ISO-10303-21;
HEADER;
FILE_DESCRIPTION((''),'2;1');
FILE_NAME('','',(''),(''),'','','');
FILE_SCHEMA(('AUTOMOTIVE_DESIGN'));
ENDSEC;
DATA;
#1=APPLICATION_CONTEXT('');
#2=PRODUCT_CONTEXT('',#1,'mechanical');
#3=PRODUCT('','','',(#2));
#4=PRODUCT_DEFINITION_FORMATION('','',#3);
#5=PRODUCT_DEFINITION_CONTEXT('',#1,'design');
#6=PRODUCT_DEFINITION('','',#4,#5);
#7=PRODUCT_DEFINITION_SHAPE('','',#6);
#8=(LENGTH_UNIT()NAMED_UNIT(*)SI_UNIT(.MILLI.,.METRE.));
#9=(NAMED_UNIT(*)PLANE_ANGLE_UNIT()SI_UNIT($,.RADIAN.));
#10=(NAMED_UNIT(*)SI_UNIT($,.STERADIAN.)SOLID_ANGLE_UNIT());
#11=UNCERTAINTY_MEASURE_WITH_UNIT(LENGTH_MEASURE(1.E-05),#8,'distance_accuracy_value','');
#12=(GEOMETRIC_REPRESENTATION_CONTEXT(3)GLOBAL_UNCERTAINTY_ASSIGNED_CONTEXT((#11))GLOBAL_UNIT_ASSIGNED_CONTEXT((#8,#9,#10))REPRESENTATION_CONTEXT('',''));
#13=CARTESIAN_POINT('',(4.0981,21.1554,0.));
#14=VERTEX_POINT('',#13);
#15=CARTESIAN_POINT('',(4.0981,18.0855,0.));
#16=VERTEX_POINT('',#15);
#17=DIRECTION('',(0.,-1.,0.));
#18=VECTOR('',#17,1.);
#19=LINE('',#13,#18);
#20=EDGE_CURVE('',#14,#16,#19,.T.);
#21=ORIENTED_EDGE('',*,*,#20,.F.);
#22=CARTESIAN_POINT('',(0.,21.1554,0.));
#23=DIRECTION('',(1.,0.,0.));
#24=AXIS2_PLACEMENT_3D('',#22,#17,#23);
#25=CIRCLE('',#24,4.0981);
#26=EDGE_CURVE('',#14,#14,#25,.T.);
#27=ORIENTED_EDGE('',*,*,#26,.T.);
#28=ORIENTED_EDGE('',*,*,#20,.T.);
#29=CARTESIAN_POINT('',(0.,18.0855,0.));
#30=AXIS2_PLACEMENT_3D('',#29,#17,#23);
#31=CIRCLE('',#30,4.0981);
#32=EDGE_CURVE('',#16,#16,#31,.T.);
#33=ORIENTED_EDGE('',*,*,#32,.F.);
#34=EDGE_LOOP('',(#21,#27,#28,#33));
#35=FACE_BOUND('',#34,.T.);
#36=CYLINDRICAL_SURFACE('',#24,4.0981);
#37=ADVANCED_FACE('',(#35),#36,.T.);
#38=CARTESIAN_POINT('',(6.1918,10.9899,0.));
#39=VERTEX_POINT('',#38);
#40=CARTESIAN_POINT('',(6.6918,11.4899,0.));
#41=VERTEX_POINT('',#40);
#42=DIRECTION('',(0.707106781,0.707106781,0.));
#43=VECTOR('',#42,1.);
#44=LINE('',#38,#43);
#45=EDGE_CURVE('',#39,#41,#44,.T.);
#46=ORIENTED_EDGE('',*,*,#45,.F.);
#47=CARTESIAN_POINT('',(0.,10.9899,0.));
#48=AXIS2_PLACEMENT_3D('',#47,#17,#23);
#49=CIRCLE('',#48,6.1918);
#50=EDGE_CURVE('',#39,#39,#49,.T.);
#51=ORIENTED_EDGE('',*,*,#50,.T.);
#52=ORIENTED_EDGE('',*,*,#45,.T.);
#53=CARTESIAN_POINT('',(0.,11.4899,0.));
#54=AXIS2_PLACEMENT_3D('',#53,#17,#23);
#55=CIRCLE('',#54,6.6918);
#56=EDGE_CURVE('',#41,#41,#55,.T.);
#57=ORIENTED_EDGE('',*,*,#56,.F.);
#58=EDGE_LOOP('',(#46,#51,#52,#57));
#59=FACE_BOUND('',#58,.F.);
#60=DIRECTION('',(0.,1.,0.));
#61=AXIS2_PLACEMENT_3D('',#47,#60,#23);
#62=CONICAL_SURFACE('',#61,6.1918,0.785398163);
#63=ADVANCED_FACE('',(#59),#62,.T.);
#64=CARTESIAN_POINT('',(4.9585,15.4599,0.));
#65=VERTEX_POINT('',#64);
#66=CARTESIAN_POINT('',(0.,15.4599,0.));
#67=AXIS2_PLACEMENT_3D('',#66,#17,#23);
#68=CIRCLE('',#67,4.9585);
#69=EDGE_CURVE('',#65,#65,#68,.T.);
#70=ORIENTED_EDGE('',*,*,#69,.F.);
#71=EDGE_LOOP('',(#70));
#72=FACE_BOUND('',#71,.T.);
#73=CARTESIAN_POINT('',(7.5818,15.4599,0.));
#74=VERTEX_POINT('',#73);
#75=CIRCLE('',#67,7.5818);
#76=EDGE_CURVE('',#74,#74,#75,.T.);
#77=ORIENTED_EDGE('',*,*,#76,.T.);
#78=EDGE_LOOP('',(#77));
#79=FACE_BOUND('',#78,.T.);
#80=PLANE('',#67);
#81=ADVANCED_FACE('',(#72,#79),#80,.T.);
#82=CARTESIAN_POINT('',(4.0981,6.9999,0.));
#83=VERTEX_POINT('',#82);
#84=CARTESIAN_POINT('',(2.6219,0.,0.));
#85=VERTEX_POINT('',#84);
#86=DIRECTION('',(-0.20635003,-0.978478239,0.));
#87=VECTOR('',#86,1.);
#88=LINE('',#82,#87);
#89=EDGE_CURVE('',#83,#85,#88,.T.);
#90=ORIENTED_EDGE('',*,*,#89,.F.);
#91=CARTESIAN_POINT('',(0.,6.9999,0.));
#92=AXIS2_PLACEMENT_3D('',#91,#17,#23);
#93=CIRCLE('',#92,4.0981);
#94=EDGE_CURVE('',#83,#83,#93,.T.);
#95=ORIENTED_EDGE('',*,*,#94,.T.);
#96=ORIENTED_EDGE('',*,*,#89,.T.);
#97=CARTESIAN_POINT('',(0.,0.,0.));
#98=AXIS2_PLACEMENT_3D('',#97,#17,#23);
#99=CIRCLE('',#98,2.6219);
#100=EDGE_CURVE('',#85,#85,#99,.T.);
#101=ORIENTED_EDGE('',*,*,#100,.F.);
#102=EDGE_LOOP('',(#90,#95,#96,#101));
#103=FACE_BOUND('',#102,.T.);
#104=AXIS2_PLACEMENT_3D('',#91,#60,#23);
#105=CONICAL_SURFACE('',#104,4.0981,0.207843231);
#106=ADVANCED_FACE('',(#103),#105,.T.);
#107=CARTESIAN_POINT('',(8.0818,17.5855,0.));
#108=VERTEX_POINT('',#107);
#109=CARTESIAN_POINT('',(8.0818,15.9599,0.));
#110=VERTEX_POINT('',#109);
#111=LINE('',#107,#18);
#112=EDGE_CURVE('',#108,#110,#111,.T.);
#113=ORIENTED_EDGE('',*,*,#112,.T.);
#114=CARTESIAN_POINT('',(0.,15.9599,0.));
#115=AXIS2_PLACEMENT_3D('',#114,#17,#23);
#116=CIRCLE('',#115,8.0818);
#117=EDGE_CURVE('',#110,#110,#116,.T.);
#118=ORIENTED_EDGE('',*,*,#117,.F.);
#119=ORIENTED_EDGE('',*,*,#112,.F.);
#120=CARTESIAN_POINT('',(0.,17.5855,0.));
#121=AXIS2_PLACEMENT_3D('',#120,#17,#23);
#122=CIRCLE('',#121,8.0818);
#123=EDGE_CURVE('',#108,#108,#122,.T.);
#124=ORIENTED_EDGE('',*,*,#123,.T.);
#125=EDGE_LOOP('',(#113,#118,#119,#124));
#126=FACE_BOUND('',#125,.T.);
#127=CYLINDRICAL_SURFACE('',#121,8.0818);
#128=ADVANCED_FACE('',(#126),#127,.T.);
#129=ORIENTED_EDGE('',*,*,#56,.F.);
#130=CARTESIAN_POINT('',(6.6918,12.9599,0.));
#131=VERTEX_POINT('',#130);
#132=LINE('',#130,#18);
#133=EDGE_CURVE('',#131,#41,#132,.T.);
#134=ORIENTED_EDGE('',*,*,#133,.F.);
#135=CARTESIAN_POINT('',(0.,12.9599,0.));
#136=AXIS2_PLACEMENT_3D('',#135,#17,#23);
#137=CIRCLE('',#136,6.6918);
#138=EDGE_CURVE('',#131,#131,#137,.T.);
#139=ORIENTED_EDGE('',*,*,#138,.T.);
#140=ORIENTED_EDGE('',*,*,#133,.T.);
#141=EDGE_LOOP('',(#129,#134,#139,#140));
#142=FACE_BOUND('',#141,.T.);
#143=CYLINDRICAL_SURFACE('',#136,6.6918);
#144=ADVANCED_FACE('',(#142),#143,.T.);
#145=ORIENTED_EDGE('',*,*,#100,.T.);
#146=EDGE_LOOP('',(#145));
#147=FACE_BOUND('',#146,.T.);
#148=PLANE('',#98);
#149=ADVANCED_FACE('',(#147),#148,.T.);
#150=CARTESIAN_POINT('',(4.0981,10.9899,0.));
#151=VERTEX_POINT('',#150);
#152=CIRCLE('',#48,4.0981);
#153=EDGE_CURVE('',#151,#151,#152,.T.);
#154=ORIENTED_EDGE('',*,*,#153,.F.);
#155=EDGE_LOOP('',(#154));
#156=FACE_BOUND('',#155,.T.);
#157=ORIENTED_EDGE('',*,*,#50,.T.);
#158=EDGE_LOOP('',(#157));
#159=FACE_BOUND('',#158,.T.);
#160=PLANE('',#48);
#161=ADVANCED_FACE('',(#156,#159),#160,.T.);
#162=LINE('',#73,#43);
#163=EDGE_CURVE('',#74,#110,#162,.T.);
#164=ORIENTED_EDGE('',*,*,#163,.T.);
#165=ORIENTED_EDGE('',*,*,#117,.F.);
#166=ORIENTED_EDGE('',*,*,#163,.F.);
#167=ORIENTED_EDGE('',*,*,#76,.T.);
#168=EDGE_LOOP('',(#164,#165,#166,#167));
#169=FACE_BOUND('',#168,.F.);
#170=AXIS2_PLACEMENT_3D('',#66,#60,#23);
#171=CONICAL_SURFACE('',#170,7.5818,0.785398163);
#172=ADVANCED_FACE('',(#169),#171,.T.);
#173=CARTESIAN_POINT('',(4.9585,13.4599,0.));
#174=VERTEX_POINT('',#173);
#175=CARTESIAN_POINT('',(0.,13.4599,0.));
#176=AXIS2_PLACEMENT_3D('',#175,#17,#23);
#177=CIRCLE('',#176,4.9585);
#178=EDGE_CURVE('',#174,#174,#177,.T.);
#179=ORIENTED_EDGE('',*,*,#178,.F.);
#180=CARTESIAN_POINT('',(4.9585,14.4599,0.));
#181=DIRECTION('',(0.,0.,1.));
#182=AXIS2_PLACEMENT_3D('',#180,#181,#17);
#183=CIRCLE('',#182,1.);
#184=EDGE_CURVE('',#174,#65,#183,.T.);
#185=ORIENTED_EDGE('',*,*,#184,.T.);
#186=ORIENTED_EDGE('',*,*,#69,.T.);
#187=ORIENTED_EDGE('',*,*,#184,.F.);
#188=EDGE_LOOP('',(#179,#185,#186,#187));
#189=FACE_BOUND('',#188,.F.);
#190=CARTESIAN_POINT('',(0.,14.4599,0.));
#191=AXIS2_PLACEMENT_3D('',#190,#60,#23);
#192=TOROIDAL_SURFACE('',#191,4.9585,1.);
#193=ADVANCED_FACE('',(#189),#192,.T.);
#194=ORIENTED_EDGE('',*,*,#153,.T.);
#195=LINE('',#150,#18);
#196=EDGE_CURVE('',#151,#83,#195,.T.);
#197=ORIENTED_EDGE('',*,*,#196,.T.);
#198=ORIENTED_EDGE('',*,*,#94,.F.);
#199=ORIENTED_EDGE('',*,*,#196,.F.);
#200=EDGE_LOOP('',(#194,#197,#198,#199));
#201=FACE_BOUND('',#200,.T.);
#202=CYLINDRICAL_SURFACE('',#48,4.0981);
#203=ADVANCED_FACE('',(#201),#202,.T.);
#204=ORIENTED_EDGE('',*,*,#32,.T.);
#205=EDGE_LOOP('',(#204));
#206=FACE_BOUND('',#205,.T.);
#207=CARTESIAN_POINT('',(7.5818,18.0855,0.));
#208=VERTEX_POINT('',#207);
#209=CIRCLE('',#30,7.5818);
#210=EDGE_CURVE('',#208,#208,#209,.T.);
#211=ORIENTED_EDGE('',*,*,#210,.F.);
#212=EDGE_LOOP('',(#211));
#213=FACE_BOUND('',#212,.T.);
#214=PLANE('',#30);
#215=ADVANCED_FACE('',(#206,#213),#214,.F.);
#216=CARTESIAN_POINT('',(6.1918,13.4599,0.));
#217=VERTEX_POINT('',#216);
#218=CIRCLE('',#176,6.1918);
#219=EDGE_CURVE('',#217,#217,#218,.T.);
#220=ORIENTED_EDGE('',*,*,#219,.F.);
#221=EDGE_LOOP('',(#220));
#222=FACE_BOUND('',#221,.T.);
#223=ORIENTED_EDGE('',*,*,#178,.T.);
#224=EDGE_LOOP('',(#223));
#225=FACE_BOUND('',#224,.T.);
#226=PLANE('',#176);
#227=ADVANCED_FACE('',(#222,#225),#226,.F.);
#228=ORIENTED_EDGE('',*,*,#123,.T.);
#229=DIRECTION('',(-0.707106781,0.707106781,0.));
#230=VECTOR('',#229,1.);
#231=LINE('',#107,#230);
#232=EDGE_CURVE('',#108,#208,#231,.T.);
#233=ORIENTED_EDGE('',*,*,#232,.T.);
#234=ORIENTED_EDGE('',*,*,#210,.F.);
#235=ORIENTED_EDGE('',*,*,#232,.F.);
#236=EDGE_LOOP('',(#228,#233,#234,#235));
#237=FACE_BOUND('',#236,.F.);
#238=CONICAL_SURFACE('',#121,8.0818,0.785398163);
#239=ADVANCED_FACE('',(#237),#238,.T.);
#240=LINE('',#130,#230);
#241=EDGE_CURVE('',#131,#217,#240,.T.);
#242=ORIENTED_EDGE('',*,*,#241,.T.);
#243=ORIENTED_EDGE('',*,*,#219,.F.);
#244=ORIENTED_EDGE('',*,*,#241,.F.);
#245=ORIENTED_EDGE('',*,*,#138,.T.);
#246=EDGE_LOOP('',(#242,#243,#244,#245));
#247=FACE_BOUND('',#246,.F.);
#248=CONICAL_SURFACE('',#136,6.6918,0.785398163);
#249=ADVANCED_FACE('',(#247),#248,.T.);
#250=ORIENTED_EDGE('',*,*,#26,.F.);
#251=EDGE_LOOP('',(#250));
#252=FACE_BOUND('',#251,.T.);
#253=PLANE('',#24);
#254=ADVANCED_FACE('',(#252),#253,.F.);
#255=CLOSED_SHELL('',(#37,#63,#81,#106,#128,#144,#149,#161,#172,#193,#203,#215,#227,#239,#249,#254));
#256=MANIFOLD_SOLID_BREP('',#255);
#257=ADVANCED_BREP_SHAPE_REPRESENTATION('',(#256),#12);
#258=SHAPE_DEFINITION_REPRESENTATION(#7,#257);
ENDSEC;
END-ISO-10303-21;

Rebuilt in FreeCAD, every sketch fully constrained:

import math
import FreeCAD as App
import Part
import Sketcher
from FreeCAD import Vector
Q = App.Units.Quantity

doc = App.newDocument("Part")
body = doc.addObject("PartDesign::Body", "Body")

# Sketch on XY plane
sketch1 = doc.addObject("Sketcher::SketchObject", "Sketch")
body.addObject(sketch1)
sketch1.AttachmentSupport = (doc.XY_Plane, [""])
sketch1.MapMode = "FlatFace"
sketch1.addGeometry(Part.LineSegment(Vector(4.1, 18.1, 0), Vector(4.1, 21.2, 0)), False)
sketch1.addGeometry(Part.LineSegment(Vector(4.1, 21.2, 0), Vector(0, 21.2, 0)), False)
sketch1.addGeometry(Part.LineSegment(Vector(0, 21.2, 0), Vector(0, 0, 0)), False)
sketch1.addGeometry(Part.LineSegment(Vector(0, 0, 0), Vector(2.6, 0, 0)), False)
sketch1.addGeometry(Part.LineSegment(Vector(2.6, 0, 0), Vector(4.1, 7, 0)), False)
sketch1.addGeometry(Part.LineSegment(Vector(4.1, 7, 0), Vector(4.1, 11, 0)), False)
sketch1.addGeometry(Part.LineSegment(Vector(4.1, 11, 0), Vector(6.2, 11, 0)), False)
sketch1.addGeometry(Part.LineSegment(Vector(6.2, 11, 0), Vector(6.7, 11.5, 0)), False)
sketch1.addGeometry(Part.LineSegment(Vector(6.7, 11.5, 0), Vector(6.7, 13, 0)), False)
sketch1.addGeometry(Part.LineSegment(Vector(6.7, 13, 0), Vector(6.2, 13.5, 0)), False)
sketch1.addGeometry(Part.LineSegment(Vector(6.2, 13.5, 0), Vector(5, 13.5, 0)), False)
sketch1.addGeometry(Part.ArcOfCircle(Part.Circle(Vector(5, 14.5, 0), Vector(0, 0, 1), 1), math.radians(-90), math.radians(90)), False)
sketch1.addGeometry(Part.LineSegment(Vector(5, 15.5, 0), Vector(7.6, 15.5, 0)), False)
sketch1.addGeometry(Part.LineSegment(Vector(7.6, 15.5, 0), Vector(8.1, 16, 0)), False)
sketch1.addGeometry(Part.LineSegment(Vector(8.1, 16, 0), Vector(8.1, 17.6, 0)), False)
sketch1.addGeometry(Part.LineSegment(Vector(8.1, 17.6, 0), Vector(7.6, 18.1, 0)), False)
sketch1.addGeometry(Part.LineSegment(Vector(7.6, 18.1, 0), Vector(4.1, 18.1, 0)), False)
sketch1.addConstraint(Sketcher.Constraint("Coincident", 0, 2, 1, 1))
sketch1.addConstraint(Sketcher.Constraint("Coincident", 1, 2, 2, 1))
sketch1.addConstraint(Sketcher.Constraint("Coincident", 2, 2, 3, 1))
sketch1.addConstraint(Sketcher.Constraint("Coincident", 3, 2, 4, 1))
sketch1.addConstraint(Sketcher.Constraint("Coincident", 4, 2, 5, 1))
sketch1.addConstraint(Sketcher.Constraint("Coincident", 5, 2, 6, 1))
sketch1.addConstraint(Sketcher.Constraint("Coincident", 6, 2, 7, 1))
sketch1.addConstraint(Sketcher.Constraint("Coincident", 7, 2, 8, 1))
sketch1.addConstraint(Sketcher.Constraint("Coincident", 8, 2, 9, 1))
sketch1.addConstraint(Sketcher.Constraint("Coincident", 9, 2, 10, 1))
sketch1.addConstraint(Sketcher.Constraint("Tangent", 10, 2, 11, 1))
sketch1.addConstraint(Sketcher.Constraint("Tangent", 11, 2, 12, 1))
sketch1.addConstraint(Sketcher.Constraint("Coincident", 12, 2, 13, 1))
sketch1.addConstraint(Sketcher.Constraint("Coincident", 13, 2, 14, 1))
sketch1.addConstraint(Sketcher.Constraint("Coincident", 14, 2, 15, 1))
sketch1.addConstraint(Sketcher.Constraint("Coincident", 15, 2, 16, 1))
sketch1.addConstraint(Sketcher.Constraint("Coincident", 16, 2, 0, 1))
sketch1.addConstraint(Sketcher.Constraint("Vertical", 0))
sketch1.addConstraint(Sketcher.Constraint("Horizontal", 1))
sketch1.addConstraint(Sketcher.Constraint("Vertical", 2))
sketch1.addConstraint(Sketcher.Constraint("Horizontal", 3))
sketch1.addConstraint(Sketcher.Constraint("Vertical", 5))
sketch1.addConstraint(Sketcher.Constraint("Horizontal", 6))
sketch1.addConstraint(Sketcher.Constraint("Vertical", 8))
sketch1.addConstraint(Sketcher.Constraint("Horizontal", 10))
sketch1.addConstraint(Sketcher.Constraint("Horizontal", 12))
sketch1.addConstraint(Sketcher.Constraint("Vertical", 14))
sketch1.addConstraint(Sketcher.Constraint("Horizontal", 16))
sketch1.addConstraint(Sketcher.Constraint("Coincident", 2, 2, -1, 1))
sketch1.addConstraint(Sketcher.Constraint("Perpendicular", 7, 9))
sketch1.addConstraint(Sketcher.Constraint("Perpendicular", 9, 13))
sketch1.addConstraint(Sketcher.Constraint("Perpendicular", 13, 15))
sketch1.addConstraint(Sketcher.Constraint("Vertical", 0, 2, 4, 2))
sketch1.addConstraint(Sketcher.Constraint("Vertical", 6, 2, 9, 2))
sketch1.addConstraint(Sketcher.Constraint("Vertical", 12, 2, 15, 2))
sketch1.addConstraint(Sketcher.Constraint("Equal", 7, 9))
sketch1.addConstraint(Sketcher.Constraint("Equal", 9, 13))
sketch1.addConstraint(Sketcher.Constraint("Radius", 11, Q("1 mm")))
sketch1.addConstraint(Sketcher.Constraint("DistanceY", -1, 1, 4, 2, Q("7 mm")))
sketch1.addConstraint(Sketcher.Constraint("DistanceX", 6, 2, 7, 2, Q("0.5 mm")))
sketch1.addConstraint(Sketcher.Constraint("DistanceX", 1, 2, 1, 1, Q("4.098 mm")))
sketch1.addConstraint(Sketcher.Constraint("DistanceX", 3, 1, 3, 2, Q("2.622 mm")))
sketch1.addConstraint(Sketcher.Constraint("DistanceY", -1, 1, 5, 2, Q("10.99 mm")))
sketch1.addConstraint(Sketcher.Constraint("DistanceY", 6, 2, 9, 2, Q("2.47 mm")))
sketch1.addConstraint(Sketcher.Constraint("DistanceY", 0, 1, 0, 2, Q("3.07 mm")))
sketch1.addConstraint(Sketcher.Constraint("DistanceX", -1, 1, 7, 2, Q("6.6918 mm")))
sketch1.addConstraint(Sketcher.Constraint("DistanceX", -1, 1, 13, 2, Q("8.0818 mm")))
sketch1.addConstraint(Sketcher.Constraint("DistanceY", 12, 2, 15, 2, Q("2.6256 mm")))
sketch1.addConstraint(Sketcher.Constraint("DistanceX", 10, 2, 10, 1, Q("1.2333 mm")))
revolution = doc.addObject("PartDesign::Revolution", "Revolution")
body.addObject(revolution)
revolution.Profile = sketch1
revolution.ReferenceAxis = (sketch1, ["V_Axis"])
revolution.Angle = 360

doc.recompute()
